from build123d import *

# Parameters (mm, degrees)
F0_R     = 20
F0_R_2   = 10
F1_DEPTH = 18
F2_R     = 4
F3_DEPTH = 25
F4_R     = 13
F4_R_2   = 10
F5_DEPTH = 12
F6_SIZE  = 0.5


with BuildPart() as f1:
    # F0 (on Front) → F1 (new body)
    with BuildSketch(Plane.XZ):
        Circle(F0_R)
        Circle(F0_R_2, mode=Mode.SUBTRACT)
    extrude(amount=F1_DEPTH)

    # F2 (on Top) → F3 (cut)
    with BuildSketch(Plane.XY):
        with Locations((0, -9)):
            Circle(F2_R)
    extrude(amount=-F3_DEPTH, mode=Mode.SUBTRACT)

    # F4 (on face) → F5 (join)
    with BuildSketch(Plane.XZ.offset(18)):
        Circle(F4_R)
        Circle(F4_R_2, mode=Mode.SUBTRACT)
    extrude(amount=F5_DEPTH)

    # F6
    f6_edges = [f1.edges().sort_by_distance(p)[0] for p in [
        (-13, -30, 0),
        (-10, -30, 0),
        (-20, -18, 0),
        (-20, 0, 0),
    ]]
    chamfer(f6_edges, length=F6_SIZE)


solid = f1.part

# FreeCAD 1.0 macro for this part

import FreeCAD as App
import Part
import Sketcher

V = App.Vector


def edges_at(feature, points):
    """Names of the edges that pass closest to the given points."""
    edges = feature.Shape.Edges
    near = lambda p: min(range(len(edges)), key=lambda i: edges[i].distToShape(Part.Vertex(*p))[0])
    return sorted({f"Edge{near(p) + 1}" for p in points})

doc = App.newDocument("Part")
body = doc.addObject("PartDesign::Body", "Body")

sketch1 = body.newObject("Sketcher::SketchObject", "Sketch")
sketch1.AttachmentSupport = (doc.getObject("XZ_Plane"), [""])
sketch1.MapMode = "FlatFace"
sketch1.addGeometry([
    Part.Circle(V(0, 0, 0), V(0, 0, 1), 20),
    Part.Circle(V(0, 0, 0), V(0, 0, 1), 10),
], False)
sketch1.addConstraint([
    Sketcher.Constraint("Coincident", 0, 3, -1, 1),
    Sketcher.Constraint("Coincident", 1, 3, -1, 1),
    Sketcher.Constraint("Diameter", 0, 40.0),
    Sketcher.Constraint("Diameter", 1, 20.0),
])
pad1 = body.newObject("PartDesign::Pad", "Pad")
pad1.Profile = sketch1
pad1.Length = 18

sketch2 = body.newObject("Sketcher::SketchObject", "Sketch001")
sketch2.AttachmentSupport = (doc.getObject("XY_Plane"), [""])
sketch2.MapMode = "FlatFace"
sketch2.addGeometry(Part.Circle(V(0, -9, 0), V(0, 0, 1), 4), False)
sketch2.addConstraint([
    Sketcher.Constraint("PointOnObject", 0, 3, -2),
    Sketcher.Constraint("Diameter", 0, 8.0),
    Sketcher.Constraint("DistanceY", 0, 3, -1, 1, 9.0),
])
pocket1 = body.newObject("PartDesign::Pocket", "Pocket")
pocket1.Profile = sketch2
pocket1.Length = 25

sketch3 = body.newObject("Sketcher::SketchObject", "Sketch002")
sketch3.AttachmentSupport = (doc.getObject("XZ_Plane"), [""])
sketch3.MapMode = "FlatFace"
sketch3.AttachmentOffset = App.Placement(V(0, 0, 18), App.Rotation())
sketch3.addGeometry([
    Part.Circle(V(0, 0, 0), V(0, 0, 1), 13),
    Part.Circle(V(0, 0, 0), V(0, 0, 1), 10),
], False)
sketch3.addConstraint([
    Sketcher.Constraint("Coincident", 0, 3, -1, 1),
    Sketcher.Constraint("Coincident", 1, 3, -1, 1),
    Sketcher.Constraint("Diameter", 0, 26.0),
    Sketcher.Constraint("Diameter", 1, 20.0),
])
pad2 = body.newObject("PartDesign::Pad", "Pad001")
pad2.Profile = sketch3
pad2.Length = 12
doc.recompute()

chamfer = body.newObject("PartDesign::Chamfer", "Chamfer")
chamfer.Base = (pad2, edges_at(pad2, [
    (-13, -30, 0),
    (-10, -30, 0),
    (-20, -18, 0),
    (-20, 0, 0),
]))
chamfer.Size = 0.5

doc.recompute()
